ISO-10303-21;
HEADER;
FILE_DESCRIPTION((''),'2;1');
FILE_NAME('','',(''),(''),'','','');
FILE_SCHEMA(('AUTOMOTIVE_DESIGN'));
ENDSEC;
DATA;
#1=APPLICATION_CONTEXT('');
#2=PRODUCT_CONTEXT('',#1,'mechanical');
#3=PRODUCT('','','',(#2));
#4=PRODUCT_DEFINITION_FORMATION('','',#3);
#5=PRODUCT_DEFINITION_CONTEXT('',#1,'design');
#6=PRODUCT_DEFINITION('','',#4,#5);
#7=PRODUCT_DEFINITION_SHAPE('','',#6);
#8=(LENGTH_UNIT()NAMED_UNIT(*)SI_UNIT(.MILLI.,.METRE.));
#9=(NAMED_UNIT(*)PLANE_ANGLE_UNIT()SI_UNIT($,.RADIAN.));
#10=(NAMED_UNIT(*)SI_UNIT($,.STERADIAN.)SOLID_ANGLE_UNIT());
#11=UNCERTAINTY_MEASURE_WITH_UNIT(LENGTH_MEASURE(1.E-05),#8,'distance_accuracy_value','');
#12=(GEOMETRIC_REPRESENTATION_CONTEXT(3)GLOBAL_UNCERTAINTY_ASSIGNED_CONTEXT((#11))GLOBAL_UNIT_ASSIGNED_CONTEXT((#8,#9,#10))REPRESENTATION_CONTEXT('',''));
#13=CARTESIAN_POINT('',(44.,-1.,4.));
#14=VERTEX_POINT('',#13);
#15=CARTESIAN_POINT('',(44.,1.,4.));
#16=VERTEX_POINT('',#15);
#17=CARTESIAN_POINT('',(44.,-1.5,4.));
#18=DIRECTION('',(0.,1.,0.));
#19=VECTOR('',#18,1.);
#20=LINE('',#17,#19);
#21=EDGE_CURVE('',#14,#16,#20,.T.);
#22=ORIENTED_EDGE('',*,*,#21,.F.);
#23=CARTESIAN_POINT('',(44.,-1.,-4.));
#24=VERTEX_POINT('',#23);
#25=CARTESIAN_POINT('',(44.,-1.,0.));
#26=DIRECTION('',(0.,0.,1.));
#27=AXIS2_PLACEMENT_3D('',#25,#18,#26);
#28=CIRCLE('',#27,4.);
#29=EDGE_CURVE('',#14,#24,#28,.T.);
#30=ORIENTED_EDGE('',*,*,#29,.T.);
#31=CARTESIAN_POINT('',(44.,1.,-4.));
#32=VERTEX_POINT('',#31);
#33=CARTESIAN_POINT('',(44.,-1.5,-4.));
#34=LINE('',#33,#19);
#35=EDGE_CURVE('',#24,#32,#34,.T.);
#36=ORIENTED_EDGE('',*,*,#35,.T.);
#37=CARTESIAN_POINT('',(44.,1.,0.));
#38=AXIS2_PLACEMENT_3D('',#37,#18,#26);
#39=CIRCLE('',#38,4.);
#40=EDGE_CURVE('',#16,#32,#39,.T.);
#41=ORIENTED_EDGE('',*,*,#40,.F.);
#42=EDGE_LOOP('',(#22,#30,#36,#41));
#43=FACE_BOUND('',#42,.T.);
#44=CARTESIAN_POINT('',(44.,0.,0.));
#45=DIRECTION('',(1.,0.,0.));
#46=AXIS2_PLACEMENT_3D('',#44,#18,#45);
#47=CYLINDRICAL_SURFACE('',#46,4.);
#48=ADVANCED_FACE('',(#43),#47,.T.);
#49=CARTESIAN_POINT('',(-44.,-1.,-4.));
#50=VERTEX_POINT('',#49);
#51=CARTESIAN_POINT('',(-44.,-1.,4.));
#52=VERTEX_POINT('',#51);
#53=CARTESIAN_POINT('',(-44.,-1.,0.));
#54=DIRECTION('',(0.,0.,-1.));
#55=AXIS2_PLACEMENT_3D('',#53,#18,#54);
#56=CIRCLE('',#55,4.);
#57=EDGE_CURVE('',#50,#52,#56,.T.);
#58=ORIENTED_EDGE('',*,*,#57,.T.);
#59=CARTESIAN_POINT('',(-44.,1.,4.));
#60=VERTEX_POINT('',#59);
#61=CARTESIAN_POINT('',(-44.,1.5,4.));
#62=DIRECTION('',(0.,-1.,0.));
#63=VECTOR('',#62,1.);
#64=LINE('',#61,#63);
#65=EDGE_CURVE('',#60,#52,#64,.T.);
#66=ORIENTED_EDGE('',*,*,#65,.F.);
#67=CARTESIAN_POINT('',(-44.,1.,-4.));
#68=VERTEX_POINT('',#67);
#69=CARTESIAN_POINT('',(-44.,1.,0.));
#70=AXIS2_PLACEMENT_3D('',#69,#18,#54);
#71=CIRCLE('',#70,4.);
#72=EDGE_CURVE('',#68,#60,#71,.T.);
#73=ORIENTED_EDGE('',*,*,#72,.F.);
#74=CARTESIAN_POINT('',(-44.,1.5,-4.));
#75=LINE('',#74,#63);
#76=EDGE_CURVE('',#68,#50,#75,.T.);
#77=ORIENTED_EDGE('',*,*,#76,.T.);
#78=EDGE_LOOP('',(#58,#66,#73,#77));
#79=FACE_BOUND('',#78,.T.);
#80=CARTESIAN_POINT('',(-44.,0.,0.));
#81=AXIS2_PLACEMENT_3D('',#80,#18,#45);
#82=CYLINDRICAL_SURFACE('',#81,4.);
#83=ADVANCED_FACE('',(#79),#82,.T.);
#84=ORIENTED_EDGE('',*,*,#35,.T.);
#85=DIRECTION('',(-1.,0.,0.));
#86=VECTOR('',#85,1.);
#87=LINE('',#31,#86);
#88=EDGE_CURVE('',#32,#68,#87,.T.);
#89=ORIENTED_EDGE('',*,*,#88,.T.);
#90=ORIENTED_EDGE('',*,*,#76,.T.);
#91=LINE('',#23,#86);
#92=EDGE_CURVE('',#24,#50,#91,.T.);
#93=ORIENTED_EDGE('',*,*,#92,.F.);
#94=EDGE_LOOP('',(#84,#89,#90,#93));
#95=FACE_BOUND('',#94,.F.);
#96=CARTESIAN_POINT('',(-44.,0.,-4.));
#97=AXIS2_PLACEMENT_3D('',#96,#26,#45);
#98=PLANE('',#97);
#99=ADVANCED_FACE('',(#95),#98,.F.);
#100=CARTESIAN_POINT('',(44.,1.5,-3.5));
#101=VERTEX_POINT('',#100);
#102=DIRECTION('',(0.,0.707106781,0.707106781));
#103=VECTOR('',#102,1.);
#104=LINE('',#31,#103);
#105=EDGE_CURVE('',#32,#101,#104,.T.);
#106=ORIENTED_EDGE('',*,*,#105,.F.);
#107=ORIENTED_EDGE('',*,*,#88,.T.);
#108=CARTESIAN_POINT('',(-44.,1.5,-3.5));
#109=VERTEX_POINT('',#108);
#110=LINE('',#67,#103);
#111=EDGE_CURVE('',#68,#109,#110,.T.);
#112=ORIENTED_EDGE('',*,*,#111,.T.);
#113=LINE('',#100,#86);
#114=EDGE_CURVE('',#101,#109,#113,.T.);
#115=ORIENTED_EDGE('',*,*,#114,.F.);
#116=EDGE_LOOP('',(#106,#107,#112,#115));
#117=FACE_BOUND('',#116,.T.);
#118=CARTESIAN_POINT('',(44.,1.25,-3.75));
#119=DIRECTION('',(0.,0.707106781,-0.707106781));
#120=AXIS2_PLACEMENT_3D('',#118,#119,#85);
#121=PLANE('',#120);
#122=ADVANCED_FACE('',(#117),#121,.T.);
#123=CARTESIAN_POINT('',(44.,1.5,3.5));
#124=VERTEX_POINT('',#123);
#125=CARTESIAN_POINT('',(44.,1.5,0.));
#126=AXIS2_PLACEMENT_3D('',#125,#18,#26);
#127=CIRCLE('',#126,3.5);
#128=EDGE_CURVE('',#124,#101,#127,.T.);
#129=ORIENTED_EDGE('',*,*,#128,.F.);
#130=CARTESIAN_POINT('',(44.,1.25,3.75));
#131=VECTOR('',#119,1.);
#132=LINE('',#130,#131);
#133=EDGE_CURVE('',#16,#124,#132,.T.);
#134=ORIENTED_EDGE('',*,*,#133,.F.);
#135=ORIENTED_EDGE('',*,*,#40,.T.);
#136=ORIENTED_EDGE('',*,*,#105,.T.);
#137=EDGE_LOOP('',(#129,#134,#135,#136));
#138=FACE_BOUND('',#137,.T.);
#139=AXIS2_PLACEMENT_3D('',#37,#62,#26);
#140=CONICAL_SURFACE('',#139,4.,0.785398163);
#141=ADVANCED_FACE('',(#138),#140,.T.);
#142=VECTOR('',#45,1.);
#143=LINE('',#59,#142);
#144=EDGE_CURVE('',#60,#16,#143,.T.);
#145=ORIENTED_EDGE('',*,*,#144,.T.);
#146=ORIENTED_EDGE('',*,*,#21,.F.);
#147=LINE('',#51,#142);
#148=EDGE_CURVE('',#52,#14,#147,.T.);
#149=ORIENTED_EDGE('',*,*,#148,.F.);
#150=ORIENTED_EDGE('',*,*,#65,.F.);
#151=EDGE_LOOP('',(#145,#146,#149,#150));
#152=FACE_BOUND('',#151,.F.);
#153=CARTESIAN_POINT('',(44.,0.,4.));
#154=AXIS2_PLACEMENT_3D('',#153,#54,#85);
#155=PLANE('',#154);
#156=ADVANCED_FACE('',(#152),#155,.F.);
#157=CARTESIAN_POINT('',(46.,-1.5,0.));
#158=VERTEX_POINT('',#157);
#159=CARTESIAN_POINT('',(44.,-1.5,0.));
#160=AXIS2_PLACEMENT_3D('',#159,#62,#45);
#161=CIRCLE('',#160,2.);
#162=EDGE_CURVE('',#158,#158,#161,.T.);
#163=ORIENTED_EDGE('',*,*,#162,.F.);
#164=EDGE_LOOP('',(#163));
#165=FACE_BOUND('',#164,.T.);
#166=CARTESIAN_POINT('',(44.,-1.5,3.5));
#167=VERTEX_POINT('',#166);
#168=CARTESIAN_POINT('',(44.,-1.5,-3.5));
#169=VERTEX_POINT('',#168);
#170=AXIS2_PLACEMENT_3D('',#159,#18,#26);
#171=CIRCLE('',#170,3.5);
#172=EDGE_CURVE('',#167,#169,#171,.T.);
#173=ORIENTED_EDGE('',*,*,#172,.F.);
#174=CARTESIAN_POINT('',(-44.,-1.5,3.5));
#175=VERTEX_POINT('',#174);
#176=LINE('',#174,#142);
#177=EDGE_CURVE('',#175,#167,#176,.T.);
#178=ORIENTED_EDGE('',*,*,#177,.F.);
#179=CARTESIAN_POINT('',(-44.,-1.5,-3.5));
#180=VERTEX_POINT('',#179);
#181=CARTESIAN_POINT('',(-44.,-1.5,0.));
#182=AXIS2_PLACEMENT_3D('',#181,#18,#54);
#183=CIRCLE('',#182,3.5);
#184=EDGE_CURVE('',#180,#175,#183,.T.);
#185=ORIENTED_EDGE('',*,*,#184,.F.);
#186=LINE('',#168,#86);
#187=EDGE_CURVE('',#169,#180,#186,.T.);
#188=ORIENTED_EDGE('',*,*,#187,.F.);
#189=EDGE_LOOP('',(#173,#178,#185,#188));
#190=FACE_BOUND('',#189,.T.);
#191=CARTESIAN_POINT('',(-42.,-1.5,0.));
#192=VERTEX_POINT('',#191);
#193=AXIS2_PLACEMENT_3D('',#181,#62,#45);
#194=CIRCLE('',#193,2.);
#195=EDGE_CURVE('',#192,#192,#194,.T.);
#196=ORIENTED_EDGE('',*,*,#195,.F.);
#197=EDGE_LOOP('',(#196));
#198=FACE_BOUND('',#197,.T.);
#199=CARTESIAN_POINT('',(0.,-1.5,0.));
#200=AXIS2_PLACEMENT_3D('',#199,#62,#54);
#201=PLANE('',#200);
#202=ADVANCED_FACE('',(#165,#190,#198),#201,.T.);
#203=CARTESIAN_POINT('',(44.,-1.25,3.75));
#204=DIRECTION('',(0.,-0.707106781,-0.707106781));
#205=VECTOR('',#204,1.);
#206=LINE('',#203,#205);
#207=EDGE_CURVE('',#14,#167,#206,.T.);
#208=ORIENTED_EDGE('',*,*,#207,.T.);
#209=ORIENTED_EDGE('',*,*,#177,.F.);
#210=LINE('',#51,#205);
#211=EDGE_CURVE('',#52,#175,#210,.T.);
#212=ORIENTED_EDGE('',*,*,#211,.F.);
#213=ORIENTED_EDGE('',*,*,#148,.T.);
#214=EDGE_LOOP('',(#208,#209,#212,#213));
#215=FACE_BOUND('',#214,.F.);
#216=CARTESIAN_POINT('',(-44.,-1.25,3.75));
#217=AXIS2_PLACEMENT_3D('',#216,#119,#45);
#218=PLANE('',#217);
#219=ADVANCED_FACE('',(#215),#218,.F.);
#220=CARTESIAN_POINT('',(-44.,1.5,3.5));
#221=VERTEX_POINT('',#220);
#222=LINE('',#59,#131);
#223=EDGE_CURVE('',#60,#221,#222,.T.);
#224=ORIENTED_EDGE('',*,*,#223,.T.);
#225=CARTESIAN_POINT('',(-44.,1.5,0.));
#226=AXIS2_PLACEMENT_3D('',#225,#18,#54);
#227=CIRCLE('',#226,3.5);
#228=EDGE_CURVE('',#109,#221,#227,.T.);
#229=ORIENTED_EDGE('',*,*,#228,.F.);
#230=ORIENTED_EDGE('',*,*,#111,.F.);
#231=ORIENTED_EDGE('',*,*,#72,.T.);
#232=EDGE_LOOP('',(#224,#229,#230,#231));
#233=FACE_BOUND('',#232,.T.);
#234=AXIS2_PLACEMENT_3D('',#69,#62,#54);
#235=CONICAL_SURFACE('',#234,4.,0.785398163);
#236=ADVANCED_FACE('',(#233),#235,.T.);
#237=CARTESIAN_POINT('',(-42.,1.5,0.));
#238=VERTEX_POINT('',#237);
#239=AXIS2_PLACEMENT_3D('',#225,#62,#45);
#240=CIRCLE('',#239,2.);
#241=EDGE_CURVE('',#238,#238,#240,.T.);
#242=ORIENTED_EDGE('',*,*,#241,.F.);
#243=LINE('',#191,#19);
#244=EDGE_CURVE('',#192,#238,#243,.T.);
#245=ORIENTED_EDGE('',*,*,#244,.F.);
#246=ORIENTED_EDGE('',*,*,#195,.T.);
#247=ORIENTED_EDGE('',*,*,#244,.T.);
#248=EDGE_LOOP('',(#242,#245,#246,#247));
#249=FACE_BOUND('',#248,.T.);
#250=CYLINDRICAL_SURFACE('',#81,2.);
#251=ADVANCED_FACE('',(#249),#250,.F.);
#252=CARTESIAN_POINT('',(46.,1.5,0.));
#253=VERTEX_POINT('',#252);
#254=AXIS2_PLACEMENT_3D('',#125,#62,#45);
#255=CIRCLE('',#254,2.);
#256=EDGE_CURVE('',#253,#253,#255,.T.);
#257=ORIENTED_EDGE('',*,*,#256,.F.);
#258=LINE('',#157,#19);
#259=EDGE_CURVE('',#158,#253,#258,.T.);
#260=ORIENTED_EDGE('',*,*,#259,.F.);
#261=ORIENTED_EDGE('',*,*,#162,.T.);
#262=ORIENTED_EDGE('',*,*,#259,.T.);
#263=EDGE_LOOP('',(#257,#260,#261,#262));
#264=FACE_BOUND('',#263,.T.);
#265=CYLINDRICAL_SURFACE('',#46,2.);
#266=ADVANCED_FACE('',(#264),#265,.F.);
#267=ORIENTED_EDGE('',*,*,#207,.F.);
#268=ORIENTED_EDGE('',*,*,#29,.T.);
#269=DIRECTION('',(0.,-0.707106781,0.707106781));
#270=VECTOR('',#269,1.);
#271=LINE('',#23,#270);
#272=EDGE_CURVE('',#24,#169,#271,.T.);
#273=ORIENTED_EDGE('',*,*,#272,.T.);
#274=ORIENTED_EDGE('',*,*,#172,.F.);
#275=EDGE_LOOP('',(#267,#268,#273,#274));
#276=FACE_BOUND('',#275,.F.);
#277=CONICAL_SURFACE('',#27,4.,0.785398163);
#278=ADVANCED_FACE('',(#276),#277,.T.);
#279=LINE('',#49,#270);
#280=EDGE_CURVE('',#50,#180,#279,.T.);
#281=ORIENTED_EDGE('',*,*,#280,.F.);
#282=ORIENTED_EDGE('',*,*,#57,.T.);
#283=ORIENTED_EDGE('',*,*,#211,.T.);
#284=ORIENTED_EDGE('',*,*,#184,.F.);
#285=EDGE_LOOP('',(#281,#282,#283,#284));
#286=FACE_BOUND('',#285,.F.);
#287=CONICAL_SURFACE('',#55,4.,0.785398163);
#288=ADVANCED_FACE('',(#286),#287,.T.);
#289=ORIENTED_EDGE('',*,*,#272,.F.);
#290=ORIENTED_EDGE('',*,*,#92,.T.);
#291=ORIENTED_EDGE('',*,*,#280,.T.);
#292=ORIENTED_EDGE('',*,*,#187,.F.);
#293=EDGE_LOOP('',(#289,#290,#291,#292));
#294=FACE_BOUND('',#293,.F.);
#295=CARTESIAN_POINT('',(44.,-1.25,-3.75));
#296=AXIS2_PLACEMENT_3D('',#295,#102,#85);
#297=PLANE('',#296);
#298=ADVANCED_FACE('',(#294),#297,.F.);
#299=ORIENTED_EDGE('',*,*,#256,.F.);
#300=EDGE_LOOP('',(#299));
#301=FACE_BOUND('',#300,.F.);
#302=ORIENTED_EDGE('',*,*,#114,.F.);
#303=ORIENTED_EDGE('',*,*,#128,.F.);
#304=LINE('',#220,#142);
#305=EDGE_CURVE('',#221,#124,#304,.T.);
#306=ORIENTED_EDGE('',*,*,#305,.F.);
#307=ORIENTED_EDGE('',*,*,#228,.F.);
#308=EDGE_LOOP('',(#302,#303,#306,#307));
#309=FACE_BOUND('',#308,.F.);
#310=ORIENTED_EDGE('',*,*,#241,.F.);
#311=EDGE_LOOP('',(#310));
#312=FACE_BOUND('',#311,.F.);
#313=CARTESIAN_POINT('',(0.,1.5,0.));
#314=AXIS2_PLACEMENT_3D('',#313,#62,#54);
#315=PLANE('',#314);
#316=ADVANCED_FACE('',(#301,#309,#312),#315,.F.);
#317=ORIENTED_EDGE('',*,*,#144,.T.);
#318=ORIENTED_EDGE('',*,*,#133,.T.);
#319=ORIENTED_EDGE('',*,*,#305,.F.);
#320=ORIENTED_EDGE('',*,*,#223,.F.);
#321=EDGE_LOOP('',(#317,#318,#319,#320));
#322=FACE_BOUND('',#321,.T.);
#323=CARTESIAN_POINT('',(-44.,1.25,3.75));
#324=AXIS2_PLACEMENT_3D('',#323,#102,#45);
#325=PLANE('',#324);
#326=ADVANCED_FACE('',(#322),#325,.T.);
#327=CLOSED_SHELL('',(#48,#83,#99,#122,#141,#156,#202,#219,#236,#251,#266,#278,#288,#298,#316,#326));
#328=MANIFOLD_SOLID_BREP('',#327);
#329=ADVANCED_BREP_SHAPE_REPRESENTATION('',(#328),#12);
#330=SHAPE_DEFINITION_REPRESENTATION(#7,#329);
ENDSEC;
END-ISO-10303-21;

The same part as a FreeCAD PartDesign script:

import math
import FreeCAD as App
import Part
import Sketcher
from FreeCAD import Vector


def edges_at(feature, points):
    """Names of the edges that pass closest to the given points."""
    edges = feature.Shape.Edges
    near = lambda p: min(range(len(edges)), key=lambda i: edges[i].distToShape(Part.Vertex(*p))[0])
    return sorted({f"Edge{near(p) + 1}" for p in points})

doc = App.newDocument("Part")
body = doc.addObject("PartDesign::Body", "Body")

sketch1 = doc.addObject("Sketcher::SketchObject", "Sketch")
body.addObject(sketch1)
sketch1.AttachmentSupport = (doc.XZ_Plane, [""])
sketch1.MapMode = "FlatFace"
sketch1.addGeometry(Part.ArcOfCircle(Part.Circle(Vector(44, 0, 0), Vector(0, 0, 1), 4), math.radians(-90), math.radians(90)), False)
sketch1.addGeometry(Part.LineSegment(Vector(44, 4, 0), Vector(-44, 4, 0)), False)
sketch1.addGeometry(Part.ArcOfCircle(Part.Circle(Vector(-44, 0, 0), Vector(0, 0, 1), 4), math.radians(90), math.radians(270)), False)
sketch1.addGeometry(Part.LineSegment(Vector(-44, -4, 0), Vector(44, -4, 0)), False)
sketch1.addGeometry(Part.Circle(Vector(-44, 0, 0), Vector(0, 0, 1), 2), False)
sketch1.addGeometry(Part.Circle(Vector(44, 0, 0), Vector(0, 0, 1), 2), False)
sketch1.addConstraint(Sketcher.Constraint("Tangent", 0, 2, 1, 1))
sketch1.addConstraint(Sketcher.Constraint("Tangent", 1, 2, 2, 1))
sketch1.addConstraint(Sketcher.Constraint("Tangent", 2, 2, 3, 1))
sketch1.addConstraint(Sketcher.Constraint("Tangent", 3, 2, 0, 1))
sketch1.addConstraint(Sketcher.Constraint("Horizontal", 1))
sketch1.addConstraint(Sketcher.Constraint("Horizontal", 3))
sketch1.addConstraint(Sketcher.Constraint("Coincident", 4, 3, 2, 3))
sketch1.addConstraint(Sketcher.Constraint("Coincident", 5, 3, 0, 3))
sketch1.addConstraint(Sketcher.Constraint("Equal", 4, 5))
sketch1.addConstraint(Sketcher.Constraint("Symmetric", 0, 3, 2, 3, -1, 1))
sketch1.addConstraint(Sketcher.Constraint("Diameter", 4, 4.0))
sketch1.addConstraint(Sketcher.Constraint("Radius", 0, 4.0))
sketch1.addConstraint(Sketcher.Constraint("DistanceX", 1, 2, 1, 1, 88.0))
pad1 = doc.addObject("PartDesign::Pad", "Pad")
body.addObject(pad1)
pad1.Profile = sketch1
pad1.Length = 3
pad1.Midplane = True
doc.recompute()

chamfer = doc.addObject("PartDesign::Chamfer", "Chamfer")
body.addObject(chamfer)
chamfer.Base = (pad1, edges_at(pad1, [
    (-48, -1.5, 0),
    (0, -1.5, -4),
    (48, -1.5, 0),
    (0, -1.5, 4),
    (-48, 1.5, 0),
    (0, 1.5, -4),
    (48, 1.5, 0),
    (0, 1.5, 4),
]))
chamfer.Size = 0.5

doc.recompute()
